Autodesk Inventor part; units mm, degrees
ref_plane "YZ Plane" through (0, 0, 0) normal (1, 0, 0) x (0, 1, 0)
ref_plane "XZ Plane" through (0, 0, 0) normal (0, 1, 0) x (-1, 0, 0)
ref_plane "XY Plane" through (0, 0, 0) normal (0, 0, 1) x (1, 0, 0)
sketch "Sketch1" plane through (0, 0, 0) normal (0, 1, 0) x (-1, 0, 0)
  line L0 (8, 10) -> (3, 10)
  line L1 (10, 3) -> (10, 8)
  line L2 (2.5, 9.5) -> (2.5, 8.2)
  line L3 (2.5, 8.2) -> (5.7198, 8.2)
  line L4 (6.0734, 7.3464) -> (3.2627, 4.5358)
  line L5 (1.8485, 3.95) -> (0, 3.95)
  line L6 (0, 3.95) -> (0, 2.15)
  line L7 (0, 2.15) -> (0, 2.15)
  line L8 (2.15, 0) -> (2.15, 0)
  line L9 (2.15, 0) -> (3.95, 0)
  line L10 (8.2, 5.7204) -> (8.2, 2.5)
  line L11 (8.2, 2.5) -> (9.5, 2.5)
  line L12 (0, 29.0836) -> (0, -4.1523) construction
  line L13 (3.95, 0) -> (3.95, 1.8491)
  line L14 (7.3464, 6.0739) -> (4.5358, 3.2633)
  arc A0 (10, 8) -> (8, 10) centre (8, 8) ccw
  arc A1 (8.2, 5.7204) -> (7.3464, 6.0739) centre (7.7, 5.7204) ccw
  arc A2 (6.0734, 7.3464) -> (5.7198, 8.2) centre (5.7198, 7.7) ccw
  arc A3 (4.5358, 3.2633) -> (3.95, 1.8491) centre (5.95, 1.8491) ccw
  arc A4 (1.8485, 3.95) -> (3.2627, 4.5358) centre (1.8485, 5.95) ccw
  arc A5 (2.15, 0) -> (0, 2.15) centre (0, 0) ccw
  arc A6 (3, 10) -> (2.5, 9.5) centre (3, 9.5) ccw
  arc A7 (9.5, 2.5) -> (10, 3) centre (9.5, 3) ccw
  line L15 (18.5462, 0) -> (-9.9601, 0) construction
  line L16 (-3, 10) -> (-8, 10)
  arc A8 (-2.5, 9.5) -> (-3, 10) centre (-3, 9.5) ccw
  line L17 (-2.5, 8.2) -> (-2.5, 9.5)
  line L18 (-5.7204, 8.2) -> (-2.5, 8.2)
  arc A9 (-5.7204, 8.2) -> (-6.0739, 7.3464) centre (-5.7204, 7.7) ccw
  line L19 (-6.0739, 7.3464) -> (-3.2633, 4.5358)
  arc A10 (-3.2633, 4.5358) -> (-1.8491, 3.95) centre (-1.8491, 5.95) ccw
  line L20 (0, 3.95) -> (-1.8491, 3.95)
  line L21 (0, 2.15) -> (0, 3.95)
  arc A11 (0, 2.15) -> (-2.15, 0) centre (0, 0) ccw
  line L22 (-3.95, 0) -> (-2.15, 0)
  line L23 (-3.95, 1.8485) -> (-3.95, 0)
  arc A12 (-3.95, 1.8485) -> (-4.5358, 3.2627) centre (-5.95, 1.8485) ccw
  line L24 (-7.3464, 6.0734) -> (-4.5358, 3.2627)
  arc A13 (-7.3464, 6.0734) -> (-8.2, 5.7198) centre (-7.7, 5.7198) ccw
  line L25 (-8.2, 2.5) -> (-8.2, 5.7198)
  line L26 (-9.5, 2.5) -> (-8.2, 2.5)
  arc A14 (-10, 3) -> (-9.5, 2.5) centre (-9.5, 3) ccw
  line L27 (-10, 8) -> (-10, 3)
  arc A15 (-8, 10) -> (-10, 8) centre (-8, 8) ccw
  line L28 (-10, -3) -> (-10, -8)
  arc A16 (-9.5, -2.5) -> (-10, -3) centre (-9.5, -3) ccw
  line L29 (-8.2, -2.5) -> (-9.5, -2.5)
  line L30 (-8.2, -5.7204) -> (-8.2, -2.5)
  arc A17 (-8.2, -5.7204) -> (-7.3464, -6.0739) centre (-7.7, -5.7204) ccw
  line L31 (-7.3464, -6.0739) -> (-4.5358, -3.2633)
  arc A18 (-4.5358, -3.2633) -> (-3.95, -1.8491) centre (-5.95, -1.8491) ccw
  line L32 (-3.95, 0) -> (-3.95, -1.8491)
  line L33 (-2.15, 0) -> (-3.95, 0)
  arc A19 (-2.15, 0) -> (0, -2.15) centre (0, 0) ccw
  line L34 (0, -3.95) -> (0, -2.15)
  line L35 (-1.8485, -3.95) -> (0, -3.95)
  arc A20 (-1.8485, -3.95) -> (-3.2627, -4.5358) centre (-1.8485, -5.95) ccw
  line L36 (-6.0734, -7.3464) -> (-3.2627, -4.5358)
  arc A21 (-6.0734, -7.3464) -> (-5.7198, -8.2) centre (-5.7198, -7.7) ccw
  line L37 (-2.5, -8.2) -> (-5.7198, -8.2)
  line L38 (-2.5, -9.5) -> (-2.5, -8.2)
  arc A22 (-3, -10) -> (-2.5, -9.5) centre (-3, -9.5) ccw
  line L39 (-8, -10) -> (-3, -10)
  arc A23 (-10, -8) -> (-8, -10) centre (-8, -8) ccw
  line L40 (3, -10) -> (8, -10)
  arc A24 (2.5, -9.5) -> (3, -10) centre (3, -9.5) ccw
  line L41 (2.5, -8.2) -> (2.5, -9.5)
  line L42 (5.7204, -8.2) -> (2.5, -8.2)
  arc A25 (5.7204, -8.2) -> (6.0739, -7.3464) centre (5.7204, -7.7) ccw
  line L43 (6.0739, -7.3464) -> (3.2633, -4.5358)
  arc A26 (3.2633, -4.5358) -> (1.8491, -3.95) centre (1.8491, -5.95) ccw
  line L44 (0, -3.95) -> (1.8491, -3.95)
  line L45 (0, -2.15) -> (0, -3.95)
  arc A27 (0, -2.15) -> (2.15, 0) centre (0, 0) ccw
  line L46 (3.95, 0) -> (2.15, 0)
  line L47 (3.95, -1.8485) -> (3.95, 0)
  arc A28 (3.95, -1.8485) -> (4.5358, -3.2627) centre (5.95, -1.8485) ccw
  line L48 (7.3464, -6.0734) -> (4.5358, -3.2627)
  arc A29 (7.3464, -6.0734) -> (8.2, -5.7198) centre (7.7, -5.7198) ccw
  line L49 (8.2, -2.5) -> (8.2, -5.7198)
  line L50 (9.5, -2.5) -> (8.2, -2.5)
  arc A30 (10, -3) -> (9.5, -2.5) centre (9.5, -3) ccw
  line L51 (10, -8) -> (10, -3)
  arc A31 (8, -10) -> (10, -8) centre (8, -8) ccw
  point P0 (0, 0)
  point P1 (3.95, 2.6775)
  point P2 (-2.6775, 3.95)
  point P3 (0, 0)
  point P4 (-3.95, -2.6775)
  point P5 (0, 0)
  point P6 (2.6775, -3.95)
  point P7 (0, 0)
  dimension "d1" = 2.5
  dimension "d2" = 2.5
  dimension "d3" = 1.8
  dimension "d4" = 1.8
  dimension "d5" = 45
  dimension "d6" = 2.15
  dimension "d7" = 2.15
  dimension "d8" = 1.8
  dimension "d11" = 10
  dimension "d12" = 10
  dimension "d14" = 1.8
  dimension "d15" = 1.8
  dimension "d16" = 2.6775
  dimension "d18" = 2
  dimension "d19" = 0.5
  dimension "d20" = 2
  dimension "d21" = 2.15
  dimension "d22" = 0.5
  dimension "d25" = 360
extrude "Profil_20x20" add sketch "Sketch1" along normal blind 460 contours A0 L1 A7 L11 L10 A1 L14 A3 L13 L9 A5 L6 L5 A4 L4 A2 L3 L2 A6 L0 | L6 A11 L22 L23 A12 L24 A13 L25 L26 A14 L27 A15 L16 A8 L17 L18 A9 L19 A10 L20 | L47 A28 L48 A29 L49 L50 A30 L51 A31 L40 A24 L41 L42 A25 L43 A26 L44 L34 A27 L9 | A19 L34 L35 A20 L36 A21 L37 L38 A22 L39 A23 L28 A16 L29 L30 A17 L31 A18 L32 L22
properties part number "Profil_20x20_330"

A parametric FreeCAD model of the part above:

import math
import FreeCAD as App
import Part
import Sketcher

doc = App.newDocument("Part")
body = doc.addObject("PartDesign::Body", "Body")

# Sketch on XZ plane
sketch1 = body.newObject("Sketcher::SketchObject", "Sketch")
sketch1.AttachmentSupport = (doc.getObject("XZ_Plane"), [""])
sketch1.MapMode = "FlatFace"
sketch1.addGeometry(Part.ArcOfCircle(Part.Circle(App.Vector(-8, 8, 0), App.Vector(0, 0, 1), 2), math.radians(90), math.radians(180)), False)
sketch1.addGeometry(Part.LineSegment(App.Vector(-8, 10, 0), App.Vector(-3, 10, 0)), False)
sketch1.addGeometry(Part.ArcOfCircle(Part.Circle(App.Vector(-3, 9.5, 0), App.Vector(0, 0, 1), 0.5), math.radians(0), math.radians(90)), False)
sketch1.addGeometry(Part.LineSegment(App.Vector(-2.5, 9.5, 0), App.Vector(-2.5, 8.2, 0)), False)
sketch1.addGeometry(Part.LineSegment(App.Vector(-2.5, 8.2, 0), App.Vector(-5.7198, 8.2, 0)), False)
sketch1.addGeometry(Part.ArcOfCircle(Part.Circle(App.Vector(-5.7198, 7.7, 0), App.Vector(0, 0, 1), 0.500066), math.radians(90), math.radians(225)), False)
sketch1.addGeometry(Part.LineSegment(App.Vector(-6.0734, 7.3464, 0), App.Vector(-3.2627, 4.5358, 0)), False)
sketch1.addGeometry(Part.ArcOfCircle(Part.Circle(App.Vector(-1.8485, 5.95, 0), App.Vector(0, 0, 1), 2), math.radians(-135), math.radians(-90)), False)
sketch1.addGeometry(Part.LineSegment(App.Vector(-1.8485, 3.95, 0), App.Vector(1.8491, 3.95, 0)), False)
sketch1.addGeometry(Part.ArcOfCircle(Part.Circle(App.Vector(1.8491, 5.95, 0), App.Vector(0, 0, 1), 1.999981), math.radians(-90), math.radians(-45)), False)
sketch1.addGeometry(Part.LineSegment(App.Vector(3.2633, 4.5358, 0), App.Vector(6.0739, 7.3464, 0)), False)
sketch1.addGeometry(Part.ArcOfCircle(Part.Circle(App.Vector(5.7204, 7.7, 0), App.Vector(0, 0, 1), 0.5), math.radians(-45.008103), math.radians(90)), False)
sketch1.addGeometry(Part.LineSegment(App.Vector(5.7204, 8.2, 0), App.Vector(2.5, 8.2, 0)), False)
sketch1.addGeometry(Part.LineSegment(App.Vector(2.5, 8.2, 0), App.Vector(2.5, 9.5, 0)), False)
sketch1.addGeometry(Part.ArcOfCircle(Part.Circle(App.Vector(3, 9.5, 0), App.Vector(0, 0, 1), 0.5), math.radians(90), math.radians(180)), False)
sketch1.addGeometry(Part.LineSegment(App.Vector(3, 10, 0), App.Vector(8, 10, 0)), False)
sketch1.addGeometry(Part.ArcOfCircle(Part.Circle(App.Vector(8, 8, 0), App.Vector(0, 0, 1), 2), math.radians(0), math.radians(90)), False)
sketch1.addGeometry(Part.LineSegment(App.Vector(10, 8, 0), App.Vector(10, 3, 0)), False)
sketch1.addGeometry(Part.ArcOfCircle(Part.Circle(App.Vector(9.5, 3, 0), App.Vector(0, 0, 1), 0.5), math.radians(-90), math.radians(0)), False)
sketch1.addGeometry(Part.LineSegment(App.Vector(9.5, 2.5, 0), App.Vector(8.2, 2.5, 0)), False)
sketch1.addGeometry(Part.LineSegment(App.Vector(8.2, 2.5, 0), App.Vector(8.2, 5.7198, 0)), False)
sketch1.addGeometry(Part.ArcOfCircle(Part.Circle(App.Vector(7.7, 5.7198, 0), App.Vector(0, 0, 1), 0.500066), math.radians(0), math.radians(135)), False)
sketch1.addGeometry(Part.LineSegment(App.Vector(7.3464, 6.0734, 0), App.Vector(4.5358, 3.2627, 0)), False)
sketch1.addGeometry(Part.ArcOfCircle(Part.Circle(App.Vector(5.95, 1.8485, 0), App.Vector(0, 0, 1), 2), math.radians(135), math.radians(180)), False)
sketch1.addGeometry(Part.LineSegment(App.Vector(3.95, 1.8485, 0), App.Vector(3.95, -1.8491, 0)), False)
sketch1.addGeometry(Part.ArcOfCircle(Part.Circle(App.Vector(5.95, -1.8491, 0), App.Vector(0, 0, 1), 1.999981), math.radians(180), math.radians(225)), False)
sketch1.addGeometry(Part.LineSegment(App.Vector(4.5358, -3.2633, 0), App.Vector(7.3464, -6.0739, 0)), False)
sketch1.addGeometry(Part.ArcOfCircle(Part.Circle(App.Vector(7.7, -5.7204, 0), App.Vector(0, 0, 1), 0.5), math.radians(-135.008103), math.radians(0)), False)
sketch1.addGeometry(Part.LineSegment(App.Vector(8.2, -5.7204, 0), App.Vector(8.2, -2.5, 0)), False)
sketch1.addGeometry(Part.LineSegment(App.Vector(8.2, -2.5, 0), App.Vector(9.5, -2.5, 0)), False)
sketch1.addGeometry(Part.ArcOfCircle(Part.Circle(App.Vector(9.5, -3, 0), App.Vector(0, 0, 1), 0.5), math.radians(0), math.radians(90)), False)
sketch1.addGeometry(Part.LineSegment(App.Vector(10, -3, 0), App.Vector(10, -8, 0)), False)
sketch1.addGeometry(Part.ArcOfCircle(Part.Circle(App.Vector(8, -8, 0), App.Vector(0, 0, 1), 2), math.radians(-90), math.radians(0)), False)
sketch1.addGeometry(Part.LineSegment(App.Vector(8, -10, 0), App.Vector(3, -10, 0)), False)
sketch1.addGeometry(Part.ArcOfCircle(Part.Circle(App.Vector(3, -9.5, 0), App.Vector(0, 0, 1), 0.5), math.radians(180), math.radians(270)), False)
sketch1.addGeometry(Part.LineSegment(App.Vector(2.5, -9.5, 0), App.Vector(2.5, -8.2, 0)), False)
sketch1.addGeometry(Part.LineSegment(App.Vector(2.5, -8.2, 0), App.Vector(5.7198, -8.2, 0)), False)
sketch1.addGeometry(Part.ArcOfCircle(Part.Circle(App.Vector(5.7198, -7.7, 0), App.Vector(0, 0, 1), 0.500066), math.radians(-90), math.radians(45)), False)
sketch1.addGeometry(Part.LineSegment(App.Vector(6.0734, -7.3464, 0), App.Vector(3.2627, -4.5358, 0)), False)
sketch1.addGeometry(Part.ArcOfCircle(Part.Circle(App.Vector(1.8485, -5.95, 0), App.Vector(0, 0, 1), 2), math.radians(45), math.radians(90)), False)
sketch1.addGeometry(Part.LineSegment(App.Vector(1.8485, -3.95, 0), App.Vector(-1.8491, -3.95, 0)), False)
sketch1.addGeometry(Part.ArcOfCircle(Part.Circle(App.Vector(-1.8491, -5.95, 0), App.Vector(0, 0, 1), 1.999981), math.radians(90), math.radians(135)), False)
sketch1.addGeometry(Part.LineSegment(App.Vector(-3.2633, -4.5358, 0), App.Vector(-6.0739, -7.3464, 0)), False)
sketch1.addGeometry(Part.ArcOfCircle(Part.Circle(App.Vector(-5.7204, -7.7, 0), App.Vector(0, 0, 1), 0.5), math.radians(134.991897), math.radians(270)), False)
sketch1.addGeometry(Part.LineSegment(App.Vector(-5.7204, -8.2, 0), App.Vector(-2.5, -8.2, 0)), False)
sketch1.addGeometry(Part.LineSegment(App.Vector(-2.5, -8.2, 0), App.Vector(-2.5, -9.5, 0)), False)
sketch1.addGeometry(Part.ArcOfCircle(Part.Circle(App.Vector(-3, -9.5, 0), App.Vector(0, 0, 1), 0.5), math.radians(-90), math.radians(0)), False)
sketch1.addGeometry(Part.LineSegment(App.Vector(-3, -10, 0), App.Vector(-8, -10, 0)), False)
sketch1.addGeometry(Part.ArcOfCircle(Part.Circle(App.Vector(-8, -8, 0), App.Vector(0, 0, 1), 2), math.radians(180), math.radians(270)), False)
sketch1.addGeometry(Part.LineSegment(App.Vector(-10, -8, 0), App.Vector(-10, -3, 0)), False)
sketch1.addGeometry(Part.ArcOfCircle(Part.Circle(App.Vector(-9.5, -3, 0), App.Vector(0, 0, 1), 0.5), math.radians(90), math.radians(180)), False)
sketch1.addGeometry(Part.LineSegment(App.Vector(-9.5, -2.5, 0), App.Vector(-8.2, -2.5, 0)), False)
sketch1.addGeometry(Part.LineSegment(App.Vector(-8.2, -2.5, 0), App.Vector(-8.2, -5.7198, 0)), False)
sketch1.addGeometry(Part.ArcOfCircle(Part.Circle(App.Vector(-7.7, -5.7198, 0), App.Vector(0, 0, 1), 0.500066), math.radians(180), math.radians(315)), False)
sketch1.addGeometry(Part.LineSegment(App.Vector(-7.3464, -6.0734, 0), App.Vector(-4.5358, -3.2627, 0)), False)
sketch1.addGeometry(Part.ArcOfCircle(Part.Circle(App.Vector(-5.95, -1.8485, 0), App.Vector(0, 0, 1), 2), math.radians(-45), math.radians(0)), False)
sketch1.addGeometry(Part.LineSegment(App.Vector(-3.95, -1.8485, 0), App.Vector(-3.95, 1.8491, 0)), False)
sketch1.addGeometry(Part.ArcOfCircle(Part.Circle(App.Vector(-5.95, 1.8491, 0), App.Vector(0, 0, 1), 1.999981), math.radians(0), math.radians(45)), False)
sketch1.addGeometry(Part.LineSegment(App.Vector(-4.5358, 3.2633, 0), App.Vector(-7.3464, 6.0739, 0)), False)
sketch1.addGeometry(Part.ArcOfCircle(Part.Circle(App.Vector(-7.7, 5.7204, 0), App.Vector(0, 0, 1), 0.5), math.radians(44.991897), math.radians(180)), False)
sketch1.addGeometry(Part.LineSegment(App.Vector(-8.2, 5.7204, 0), App.Vector(-8.2, 2.5, 0)), False)
sketch1.addGeometry(Part.LineSegment(App.Vector(-8.2, 2.5, 0), App.Vector(-9.5, 2.5, 0)), False)
sketch1.addGeometry(Part.ArcOfCircle(Part.Circle(App.Vector(-9.5, 3, 0), App.Vector(0, 0, 1), 0.5), math.radians(180), math.radians(270)), False)
sketch1.addGeometry(Part.LineSegment(App.Vector(-10, 3, 0), App.Vector(-10, 8, 0)), False)
sketch1.addGeometry(Part.Circle(App.Vector(0, 0, 0), App.Vector(0, 0, 1), 2.15), False)
sketch1.addConstraint(Sketcher.Constraint("Tangent", 0, 1, 1, 1))
sketch1.addConstraint(Sketcher.Constraint("Tangent", 1, 2, 2, 2))
sketch1.addConstraint(Sketcher.Constraint("Tangent", 2, 1, 3, 1))
sketch1.addConstraint(Sketcher.Constraint("Coincident", 3, 2, 4, 1))
sketch1.addConstraint(Sketcher.Constraint("Tangent", 4, 2, 5, 1))
sketch1.addConstraint(Sketcher.Constraint("Tangent", 5, 2, 6, 1))
sketch1.addConstraint(Sketcher.Constraint("Tangent", 6, 2, 7, 1))
sketch1.addConstraint(Sketcher.Constraint("Tangent", 7, 2, 8, 1))
sketch1.addConstraint(Sketcher.Constraint("Tangent", 8, 2, 9, 1))
sketch1.addConstraint(Sketcher.Constraint("Tangent", 9, 2, 10, 1))
sketch1.addConstraint(Sketcher.Constraint("Tangent", 10, 2, 11, 1))
sketch1.addConstraint(Sketcher.Constraint("Tangent", 11, 2, 12, 1))
sketch1.addConstraint(Sketcher.Constraint("Coincident", 12, 2, 13, 1))
sketch1.addConstraint(Sketcher.Constraint("Tangent", 13, 2, 14, 2))
sketch1.addConstraint(Sketcher.Constraint("Tangent", 14, 1, 15, 1))
sketch1.addConstraint(Sketcher.Constraint("Tangent", 15, 2, 16, 2))
sketch1.addConstraint(Sketcher.Constraint("Tangent", 16, 1, 17, 1))
sketch1.addConstraint(Sketcher.Constraint("Tangent", 17, 2, 18, 2))
sketch1.addConstraint(Sketcher.Constraint("Tangent", 18, 1, 19, 1))
sketch1.addConstraint(Sketcher.Constraint("Coincident", 19, 2, 20, 1))
sketch1.addConstraint(Sketcher.Constraint("Tangent", 20, 2, 21, 1))
sketch1.addConstraint(Sketcher.Constraint("Tangent", 21, 2, 22, 1))
sketch1.addConstraint(Sketcher.Constraint("Tangent", 22, 2, 23, 1))
sketch1.addConstraint(Sketcher.Constraint("Tangent", 23, 2, 24, 1))
sketch1.addConstraint(Sketcher.Constraint("Tangent", 24, 2, 25, 1))
sketch1.addConstraint(Sketcher.Constraint("Tangent", 25, 2, 26, 1))
sketch1.addConstraint(Sketcher.Constraint("Tangent", 26, 2, 27, 1))
sketch1.addConstraint(Sketcher.Constraint("Tangent", 27, 2, 28, 1))
sketch1.addConstraint(Sketcher.Constraint("Coincident", 28, 2, 29, 1))
sketch1.addConstraint(Sketcher.Constraint("Tangent", 29, 2, 30, 2))
sketch1.addConstraint(Sketcher.Constraint("Tangent", 30, 1, 31, 1))
sketch1.addConstraint(Sketcher.Constraint("Tangent", 31, 2, 32, 2))
sketch1.addConstraint(Sketcher.Constraint("Tangent", 32, 1, 33, 1))
sketch1.addConstraint(Sketcher.Constraint("Tangent", 33, 2, 34, 2))
sketch1.addConstraint(Sketcher.Constraint("Tangent", 34, 1, 35, 1))
sketch1.addConstraint(Sketcher.Constraint("Coincident", 35, 2, 36, 1))
sketch1.addConstraint(Sketcher.Constraint("Tangent", 36, 2, 37, 1))
sketch1.addConstraint(Sketcher.Constraint("Tangent", 37, 2, 38, 1))
sketch1.addConstraint(Sketcher.Constraint("Tangent", 38, 2, 39, 1))
sketch1.addConstraint(Sketcher.Constraint("Tangent", 39, 2, 40, 1))
sketch1.addConstraint(Sketcher.Constraint("Tangent", 40, 2, 41, 1))
sketch1.addConstraint(Sketcher.Constraint("Tangent", 41, 2, 42, 1))
sketch1.addConstraint(Sketcher.Constraint("Tangent", 42, 2, 43, 1))
sketch1.addConstraint(Sketcher.Constraint("Tangent", 43, 2, 44, 1))
sketch1.addConstraint(Sketcher.Constraint("Coincident", 44, 2, 45, 1))
sketch1.addConstraint(Sketcher.Constraint("Tangent", 45, 2, 46, 2))
sketch1.addConstraint(Sketcher.Constraint("Tangent", 46, 1, 47, 1))
sketch1.addConstraint(Sketcher.Constraint("Tangent", 47, 2, 48, 2))
sketch1.addConstraint(Sketcher.Constraint("Tangent", 48, 1, 49, 1))
sketch1.addConstraint(Sketcher.Constraint("Tangent", 49, 2, 50, 2))
sketch1.addConstraint(Sketcher.Constraint("Tangent", 50, 1, 51, 1))
sketch1.addConstraint(Sketcher.Constraint("Coincident", 51, 2, 52, 1))
sketch1.addConstraint(Sketcher.Constraint("Tangent", 52, 2, 53, 1))
sketch1.addConstraint(Sketcher.Constraint("Tangent", 53, 2, 54, 1))
sketch1.addConstraint(Sketcher.Constraint("Tangent", 54, 2, 55, 1))
sketch1.addConstraint(Sketcher.Constraint("Tangent", 55, 2, 56, 1))
sketch1.addConstraint(Sketcher.Constraint("Tangent", 56, 2, 57, 1))
sketch1.addConstraint(Sketcher.Constraint("Tangent", 57, 2, 58, 1))
sketch1.addConstraint(Sketcher.Constraint("Tangent", 58, 2, 59, 1))
sketch1.addConstraint(Sketcher.Constraint("Tangent", 59, 2, 60, 1))
sketch1.addConstraint(Sketcher.Constraint("Coincident", 60, 2, 61, 1))
sketch1.addConstraint(Sketcher.Constraint("Tangent", 61, 2, 62, 2))
sketch1.addConstraint(Sketcher.Constraint("Tangent", 62, 1, 63, 1))
sketch1.addConstraint(Sketcher.Constraint("Tangent", 63, 2, 0, 2))
sketch1.addConstraint(Sketcher.Constraint("Horizontal", 1))
sketch1.addConstraint(Sketcher.Constraint("Vertical", 3))
sketch1.addConstraint(Sketcher.Constraint("Horizontal", 4))
sketch1.addConstraint(Sketcher.Constraint("Horizontal", 8))
sketch1.addConstraint(Sketcher.Constraint("Horizontal", 12))
sketch1.addConstraint(Sketcher.Constraint("Vertical", 13))
sketch1.addConstraint(Sketcher.Constraint("Horizontal", 15))
sketch1.addConstraint(Sketcher.Constraint("Vertical", 17))
sketch1.addConstraint(Sketcher.Constraint("Horizontal", 19))
sketch1.addConstraint(Sketcher.Constraint("Vertical", 20))
sketch1.addConstraint(Sketcher.Constraint("Vertical", 24))
sketch1.addConstraint(Sketcher.Constraint("Vertical", 28))
sketch1.addConstraint(Sketcher.Constraint("Horizontal", 29))
sketch1.addConstraint(Sketcher.Constraint("Vertical", 31))
sketch1.addConstraint(Sketcher.Constraint("Horizontal", 33))
sketch1.addConstraint(Sketcher.Constraint("Vertical", 35))
sketch1.addConstraint(Sketcher.Constraint("Horizontal", 36))
sketch1.addConstraint(Sketcher.Constraint("Horizontal", 40))
sketch1.addConstraint(Sketcher.Constraint("Horizontal", 44))
sketch1.addConstraint(Sketcher.Constraint("Vertical", 45))
sketch1.addConstraint(Sketcher.Constraint("Horizontal", 47))
sketch1.addConstraint(Sketcher.Constraint("Vertical", 49))
sketch1.addConstraint(Sketcher.Constraint("Horizontal", 51))
sketch1.addConstraint(Sketcher.Constraint("Vertical", 52))
sketch1.addConstraint(Sketcher.Constraint("Vertical", 56))
sketch1.addConstraint(Sketcher.Constraint("Vertical", 60))
sketch1.addConstraint(Sketcher.Constraint("Horizontal", 61))
sketch1.addConstraint(Sketcher.Constraint("Vertical", 63))
sketch1.addConstraint(Sketcher.Constraint("Coincident", 64, 3, -1, 1))
sketch1.addConstraint(Sketcher.Constraint("Equal", 2, 5))
sketch1.addConstraint(Sketcher.Constraint("Equal", 0, 7))
sketch1.addConstraint(Sketcher.Constraint("Equal", 7, 9))
sketch1.addConstraint(Sketcher.Constraint("Equal", 5, 11))
sketch1.addConstraint(Sketcher.Constraint("Equal", 11, 14))
sketch1.addConstraint(Sketcher.Constraint("Equal", 9, 16))
sketch1.addConstraint(Sketcher.Constraint("Equal", 14, 18))
sketch1.addConstraint(Sketcher.Constraint("Equal", 18, 21))
sketch1.addConstraint(Sketcher.Constraint("Equal", 16, 23))
sketch1.addConstraint(Sketcher.Constraint("Equal", 23, 25))
sketch1.addConstraint(Sketcher.Constraint("Equal", 21, 27))
sketch1.addConstraint(Sketcher.Constraint("Equal", 27, 30))
sketch1.addConstraint(Sketcher.Constraint("Equal", 25, 32))
sketch1.addConstraint(Sketcher.Constraint("Equal", 30, 34))
sketch1.addConstraint(Sketcher.Constraint("Equal", 34, 37))
sketch1.addConstraint(Sketcher.Constraint("Equal", 32, 39))
sketch1.addConstraint(Sketcher.Constraint("Equal", 39, 41))
sketch1.addConstraint(Sketcher.Constraint("Equal", 37, 43))
sketch1.addConstraint(Sketcher.Constraint("Equal", 43, 46))
sketch1.addConstraint(Sketcher.Constraint("Equal", 41, 48))
sketch1.addConstraint(Sketcher.Constraint("Equal", 46, 50))
sketch1.addConstraint(Sketcher.Constraint("Equal", 50, 53))
sketch1.addConstraint(Sketcher.Constraint("Equal", 48, 55))
sketch1.addConstraint(Sketcher.Constraint("Equal", 55, 57))
sketch1.addConstraint(Sketcher.Constraint("Equal", 53, 59))
sketch1.addConstraint(Sketcher.Constraint("Equal", 59, 62))
sketch1.addConstraint(Sketcher.Constraint("Symmetric", 0, 3, 32, 3, -1, 1))
sketch1.addConstraint(Sketcher.Constraint("Symmetric", 5, 3, 37, 3, -1, 1))
sketch1.addConstraint(Sketcher.Constraint("Symmetric", 7, 3, 39, 3, -1, 1))
sketch1.addConstraint(Sketcher.Constraint("Symmetric", 11, 3, 43, 3, -1, 1))
sketch1.addConstraint(Sketcher.Constraint("Symmetric", 14, 3, 46, 3, -1, 1))
sketch1.addConstraint(Sketcher.Constraint("Symmetric", 18, 3, 50, 3, -1, 1))
sketch1.addConstraint(Sketcher.Constraint("Symmetric", 21, 3, 53, 3, -1, 1))
sketch1.addConstraint(Sketcher.Constraint("Symmetric", 23, 3, 55, 3, -1, 1))
sketch1.addConstraint(Sketcher.Constraint("Symmetric", 27, 3, 59, 3, -1, 1))
sketch1.addConstraint(Sketcher.Constraint("Symmetric", 2, 3, 14, 3, -2))
sketch1.addConstraint(Sketcher.Constraint("Symmetric", 30, 3, 50, 3, -2))
sketch1.addConstraint(Sketcher.Constraint("Symmetric", 35, 2, 44, 2, -2))
sketch1.addConstraint(Sketcher.Constraint("Symmetric", 19, 2, 60, 2, -2))
sketch1.addConstraint(Sketcher.Constraint("Perpendicular", 6, 10))
sketch1.addConstraint(Sketcher.Constraint("Parallel", 10, 22))
sketch1.addConstraint(Sketcher.Constraint("Perpendicular", 22, 26))
sketch1.addConstraint(Sketcher.Constraint("Perpendicular", 38, 42))
sketch1.addConstraint(Sketcher.Constraint("Perpendicular", 54, 58))
sketch1.addConstraint(Sketcher.Constraint("Horizontal", 6, 2, 9, 2))
sketch1.addConstraint(Sketcher.Constraint("Equal", 61, 3))
sketch1.addConstraint(Sketcher.Constraint("Equal", 47, 17))
sketch1.addConstraint(Sketcher.Constraint("Equal", 36, 20))
sketch1.addConstraint(Sketcher.Constraint("Equal", 40, 24))
sketch1.addConstraint(Sketcher.Constraint("Equal", 44, 28))
sketch1.addConstraint(Sketcher.Constraint("Equal", 10, 22))
sketch1.addConstraint(Sketcher.Constraint("Radius", 0, 2.0))
sketch1.addConstraint(Sketcher.Constraint("Diameter", 64, 4.3))
sketch1.addConstraint(Sketcher.Constraint("Radius", 2, 0.5))
sketch1.addConstraint(Sketcher.Constraint("DistanceY", -1, 1, 0, 1, 10.0))
sketch1.addConstraint(Sketcher.Constraint("DistanceX", 2, 1, -1, 1, 2.5))
sketch1.addConstraint(Sketcher.Constraint("DistanceX", 19, 2, 19, 1, 1.3))
sketch1.addConstraint(Sketcher.Constraint("DistanceY", -1, 1, 7, 3, 5.95))
sketch1.addConstraint(Sketcher.Constraint("DistanceX", 4, 2, 4, 1, 3.2198))
sketch1.addConstraint(Sketcher.Constraint("DistanceX", 8, 1, 8, 2, 3.6976))
pad1 = body.newObject("PartDesign::Pad", "Pad")
pad1.Profile = sketch1
pad1.Length = 460
pad1.Reversed = True

doc.recompute()
